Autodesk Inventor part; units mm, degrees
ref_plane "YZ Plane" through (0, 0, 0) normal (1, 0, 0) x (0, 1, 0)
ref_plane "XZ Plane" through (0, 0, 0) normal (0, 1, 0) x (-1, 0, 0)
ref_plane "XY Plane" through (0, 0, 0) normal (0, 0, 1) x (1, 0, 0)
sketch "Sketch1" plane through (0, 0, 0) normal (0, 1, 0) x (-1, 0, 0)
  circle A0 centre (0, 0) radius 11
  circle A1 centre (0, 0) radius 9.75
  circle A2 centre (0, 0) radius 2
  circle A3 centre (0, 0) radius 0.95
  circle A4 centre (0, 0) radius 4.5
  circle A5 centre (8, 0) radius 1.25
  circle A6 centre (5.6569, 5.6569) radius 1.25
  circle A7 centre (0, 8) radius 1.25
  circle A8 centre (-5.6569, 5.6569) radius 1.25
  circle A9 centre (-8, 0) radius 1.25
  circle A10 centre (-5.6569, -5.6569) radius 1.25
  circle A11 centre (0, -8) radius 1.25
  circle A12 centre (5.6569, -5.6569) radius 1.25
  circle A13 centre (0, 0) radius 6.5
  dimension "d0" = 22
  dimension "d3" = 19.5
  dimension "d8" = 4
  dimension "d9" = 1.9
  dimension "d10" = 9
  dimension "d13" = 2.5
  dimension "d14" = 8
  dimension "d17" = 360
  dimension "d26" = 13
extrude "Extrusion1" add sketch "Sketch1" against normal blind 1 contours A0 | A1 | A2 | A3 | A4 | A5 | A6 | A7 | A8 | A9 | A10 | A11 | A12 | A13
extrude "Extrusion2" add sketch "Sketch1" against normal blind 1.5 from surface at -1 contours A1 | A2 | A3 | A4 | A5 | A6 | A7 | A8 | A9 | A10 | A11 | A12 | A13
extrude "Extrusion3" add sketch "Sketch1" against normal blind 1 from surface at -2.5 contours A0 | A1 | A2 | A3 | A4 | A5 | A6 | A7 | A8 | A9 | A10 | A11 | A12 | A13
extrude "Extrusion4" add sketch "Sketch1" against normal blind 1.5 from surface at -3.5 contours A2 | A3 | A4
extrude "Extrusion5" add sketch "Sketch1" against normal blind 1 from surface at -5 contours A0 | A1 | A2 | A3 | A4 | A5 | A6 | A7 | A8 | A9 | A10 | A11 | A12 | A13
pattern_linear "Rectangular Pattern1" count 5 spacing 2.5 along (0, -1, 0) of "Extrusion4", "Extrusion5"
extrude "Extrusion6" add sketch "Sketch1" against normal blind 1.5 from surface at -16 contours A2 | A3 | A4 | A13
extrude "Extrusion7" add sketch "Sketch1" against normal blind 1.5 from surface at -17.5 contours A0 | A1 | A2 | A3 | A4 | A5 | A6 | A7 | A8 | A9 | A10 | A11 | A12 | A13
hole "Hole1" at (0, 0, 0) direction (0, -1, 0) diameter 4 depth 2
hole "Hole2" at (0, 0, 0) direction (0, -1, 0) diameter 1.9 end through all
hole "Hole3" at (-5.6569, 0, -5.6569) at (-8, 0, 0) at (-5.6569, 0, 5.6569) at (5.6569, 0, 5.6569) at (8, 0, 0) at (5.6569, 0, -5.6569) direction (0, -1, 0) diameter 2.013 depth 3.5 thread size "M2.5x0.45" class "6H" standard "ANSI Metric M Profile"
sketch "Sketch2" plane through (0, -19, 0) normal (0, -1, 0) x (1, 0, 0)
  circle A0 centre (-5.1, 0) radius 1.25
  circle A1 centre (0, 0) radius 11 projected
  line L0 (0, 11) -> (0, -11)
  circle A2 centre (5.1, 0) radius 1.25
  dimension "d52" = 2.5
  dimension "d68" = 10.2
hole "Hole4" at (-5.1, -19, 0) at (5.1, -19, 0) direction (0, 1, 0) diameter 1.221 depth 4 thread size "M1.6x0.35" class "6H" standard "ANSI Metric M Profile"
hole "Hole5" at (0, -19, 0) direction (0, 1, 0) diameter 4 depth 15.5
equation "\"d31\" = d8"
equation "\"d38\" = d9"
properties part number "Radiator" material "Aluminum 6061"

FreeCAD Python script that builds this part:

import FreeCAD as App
import Part
import Sketcher

V = App.Vector
Q = App.Units.Quantity

doc = App.newDocument("Part")
body = doc.addObject("PartDesign::Body", "Body")

# Sketch on XZ plane
sketch1 = doc.addObject("Sketcher::SketchObject", "Sketch")
body.addObject(sketch1)
sketch1.AttachmentSupport = (doc.XZ_Plane, [""])
sketch1.MapMode = "FlatFace"
sketch1.addGeometry(Part.Circle(V(0, 0, 0), V(0, 0, 1), 11), False)
sketch1.addConstraint([
    Sketcher.Constraint("Coincident", 0, 3, -1, 1),
    Sketcher.Constraint("Diameter", 0, Q("22 mm")),
])
pad1 = doc.addObject("PartDesign::Pad", "Pad")
body.addObject(pad1)
pad1.Profile = sketch1
pad1.Length = 1

# Sketch on XZ plane
sketch2 = doc.addObject("Sketcher::SketchObject", "Sketch001")
body.addObject(sketch2)
sketch2.AttachmentSupport = (doc.XZ_Plane, [""])
sketch2.MapMode = "FlatFace"
sketch2.AttachmentOffset = App.Placement(V(0, 0, 1), App.Rotation())
sketch2.addGeometry(Part.Circle(V(0, 0, 0), V(0, 0, 1), 10), False)
sketch2.addConstraint([
    Sketcher.Constraint("Coincident", 0, 3, -1, 1),
    Sketcher.Constraint("Diameter", 0, Q("19.5 mm")),
])
pad2 = doc.addObject("PartDesign::Pad", "Pad001")
body.addObject(pad2)
pad2.Profile = sketch2
pad2.Length = 1.5

# Sketch on XZ plane
sketch3 = doc.addObject("Sketcher::SketchObject", "Sketch002")
body.addObject(sketch3)
sketch3.AttachmentSupport = (doc.XZ_Plane, [""])
sketch3.MapMode = "FlatFace"
sketch3.AttachmentOffset = App.Placement(V(0, 0, 2.5), App.Rotation())
sketch3.addGeometry(Part.Circle(V(0, 0, 0), V(0, 0, 1), 11), False)
sketch3.addConstraint([
    Sketcher.Constraint("Coincident", 0, 3, -1, 1),
    Sketcher.Constraint("Diameter", 0, Q("22 mm")),
])
pad3 = doc.addObject("PartDesign::Pad", "Pad002")
body.addObject(pad3)
pad3.Profile = sketch3
pad3.Length = 1

# Sketch on XZ plane
sketch4 = doc.addObject("Sketcher::SketchObject", "Sketch003")
body.addObject(sketch4)
sketch4.AttachmentSupport = (doc.XZ_Plane, [""])
sketch4.MapMode = "FlatFace"
sketch4.AttachmentOffset = App.Placement(V(0, 0, 3.5), App.Rotation())
sketch4.addGeometry(Part.Circle(V(0, 0, 0), V(0, 0, 1), 4.5), False)
sketch4.addConstraint([
    Sketcher.Constraint("Coincident", 0, 3, -1, 1),
    Sketcher.Constraint("Diameter", 0, Q("9 mm")),
])
pad4 = doc.addObject("PartDesign::Pad", "Pad003")
body.addObject(pad4)
pad4.Profile = sketch4
pad4.Length = 1.5

# Sketch on XZ plane
sketch5 = doc.addObject("Sketcher::SketchObject", "Sketch004")
body.addObject(sketch5)
sketch5.AttachmentSupport = (doc.XZ_Plane, [""])
sketch5.MapMode = "FlatFace"
sketch5.AttachmentOffset = App.Placement(V(0, 0, 5), App.Rotation())
sketch5.addGeometry(Part.Circle(V(0, 0, 0), V(0, 0, 1), 11), False)
sketch5.addConstraint([
    Sketcher.Constraint("Coincident", 0, 3, -1, 1),
    Sketcher.Constraint("Diameter", 0, Q("22 mm")),
])
pad5 = doc.addObject("PartDesign::Pad", "Pad004")
body.addObject(pad5)
pad5.Profile = sketch5
pad5.Length = 1
doc.recompute()

linearpattern = doc.addObject("PartDesign::LinearPattern", "LinearPattern")
body.addObject(linearpattern)
linearpattern.Originals = [pad4, pad5]
linearpattern.Direction = (doc.Y_Axis, [""])
linearpattern.Mode = "offset"
linearpattern.Offset = 2.5
linearpattern.Occurrences = 5
linearpattern.Reversed = True
body.Tip = linearpattern

# Sketch on XZ plane
sketch6 = doc.addObject("Sketcher::SketchObject", "Sketch005")
body.addObject(sketch6)
sketch6.AttachmentSupport = (doc.XZ_Plane, [""])
sketch6.MapMode = "FlatFace"
sketch6.AttachmentOffset = App.Placement(V(0, 0, 16), App.Rotation())
sketch6.addGeometry(Part.Circle(V(0, 0, 0), V(0, 0, 1), 6), False)
sketch6.addConstraint([
    Sketcher.Constraint("Coincident", 0, 3, -1, 1),
    Sketcher.Constraint("Diameter", 0, Q("13 mm")),
])
pad6 = doc.addObject("PartDesign::Pad", "Pad005")
body.addObject(pad6)
pad6.Profile = sketch6
pad6.Length = 1.5

# Sketch on XZ plane
sketch7 = doc.addObject("Sketcher::SketchObject", "Sketch006")
body.addObject(sketch7)
sketch7.AttachmentSupport = (doc.XZ_Plane, [""])
sketch7.MapMode = "FlatFace"
sketch7.AttachmentOffset = App.Placement(V(0, 0, 17.5), App.Rotation())
sketch7.addGeometry(Part.Circle(V(0, 0, 0), V(0, 0, 1), 11), False)
sketch7.addConstraint([
    Sketcher.Constraint("Coincident", 0, 3, -1, 1),
    Sketcher.Constraint("Diameter", 0, Q("22 mm")),
])
pad7 = doc.addObject("PartDesign::Pad", "Pad006")
body.addObject(pad7)
pad7.Profile = sketch7
pad7.Length = 1.5

# Sketch on XZ plane
sketch8 = doc.addObject("Sketcher::SketchObject", "Sketch007")
body.addObject(sketch8)
sketch8.AttachmentSupport = (doc.XZ_Plane, [""])
sketch8.MapMode = "FlatFace"
sketch8.addGeometry(Part.Circle(V(0, 0, 0), V(0, 0, 1), 2), False)
sketch8.addConstraint([
    Sketcher.Constraint("Coincident", 0, 3, -1, 1),
    Sketcher.Constraint("Diameter", 0, Q("4 mm")),
])
doc.recompute()
hole = doc.addObject("PartDesign::Hole", "Hole")
body.addObject(hole)
hole.Profile = sketch8
hole.ThreadType = "None"
hole.Diameter = 4
hole.DepthType = "Dimension"
hole.Depth = 2
hole.DrillPoint = "Flat"
hole.Reversed = True

# Sketch on XZ plane
sketch9 = doc.addObject("Sketcher::SketchObject", "Sketch008")
body.addObject(sketch9)
sketch9.AttachmentSupport = (doc.XZ_Plane, [""])
sketch9.MapMode = "FlatFace"
sketch9.addGeometry(Part.Circle(V(0, 0, 0), V(0, 0, 1), 0.9), False)
sketch9.addConstraint([
    Sketcher.Constraint("Coincident", 0, 3, -1, 1),
    Sketcher.Constraint("Diameter", 0, Q("1.9 mm")),
])
doc.recompute()
hole2 = doc.addObject("PartDesign::Hole", "Hole001")
body.addObject(hole2)
hole2.Profile = sketch9
hole2.ThreadType = "None"
hole2.Diameter = 1.9
hole2.DepthType = "ThroughAll"
hole2.Reversed = True

# Sketch on XZ plane
sketch10 = doc.addObject("Sketcher::SketchObject", "Sketch009")
body.addObject(sketch10)
sketch10.AttachmentSupport = (doc.XZ_Plane, [""])
sketch10.MapMode = "FlatFace"
sketch10.addGeometry([
    Part.Circle(V(-5.7, -5.7, 0), V(0, 0, 1), 1),  # 0
    Part.Circle(V(-8, 0, 0), V(0, 0, 1), 1),  # 1
    Part.Circle(V(-5.7, 5.7, 0), V(0, 0, 1), 1),  # 2
    Part.Circle(V(5.7, 5.7, 0), V(0, 0, 1), 1),  # 3
    Part.Circle(V(8, 0, 0), V(0, 0, 1), 1),  # 4
    Part.Circle(V(5.7, -5.7, 0), V(0, 0, 1), 1),  # 5
], False)
sketch10.addConstraint([
    Sketcher.Constraint("Equal", 0, 1),
    Sketcher.Constraint("Equal", 1, 2),
    Sketcher.Constraint("Equal", 2, 3),
    Sketcher.Constraint("Equal", 3, 4),
    Sketcher.Constraint("Equal", 4, 5),
    Sketcher.Constraint("Symmetric", 0, 3, 3, 3, -1, 1),
    Sketcher.Constraint("Symmetric", 1, 3, 4, 3, -1, 1),
    Sketcher.Constraint("Symmetric", 2, 3, 5, 3, -1, 1),
    Sketcher.Constraint("Symmetric", 2, 3, 3, 3, -2),
    Sketcher.Constraint("PointOnObject", 1, 3, -1),
    Sketcher.Constraint("Diameter", 0, Q("2.013 mm")),
    Sketcher.Constraint("DistanceX", 1, 3, -1, 1, Q("8 mm")),
    Sketcher.Constraint("DistanceX", 0, 3, -1, 1, Q("5.657 mm")),
    Sketcher.Constraint("DistanceY", 0, 3, -1, 1, Q("5.657 mm")),
])
doc.recompute()
hole3 = doc.addObject("PartDesign::Hole", "Hole002")
body.addObject(hole3)
hole3.Profile = sketch10
hole3.ThreadType = "None"
hole3.Diameter = 2.013
hole3.DepthType = "Dimension"
hole3.Depth = 3.5
hole3.DrillPoint = "Flat"
hole3.Reversed = True

# Sketch on XZ plane
sketch11 = doc.addObject("Sketcher::SketchObject", "Sketch010")
body.addObject(sketch11)
sketch11.AttachmentSupport = (doc.XZ_Plane, [""])
sketch11.MapMode = "FlatFace"
sketch11.AttachmentOffset = App.Placement(V(0, 0, 19), App.Rotation())
sketch11.addGeometry([
    Part.Circle(V(-5.1, 0, 0), V(0, 0, 1), 0.6),
    Part.Circle(V(5.1, 0, 0), V(0, 0, 1), 0.6),
], False)
sketch11.addConstraint([
    Sketcher.Constraint("Equal", 0, 1),
    Sketcher.Constraint("Symmetric", 0, 3, 1, 3, -1, 1),
    Sketcher.Constraint("PointOnObject", 0, 3, -1),
    Sketcher.Constraint("Diameter", 0, Q("1.221 mm")),
    Sketcher.Constraint("DistanceX", 0, 3, -1, 1, Q("5.1 mm")),
])
doc.recompute()
hole4 = doc.addObject("PartDesign::Hole", "Hole003")
body.addObject(hole4)
hole4.Profile = sketch11
hole4.ThreadType = "None"
hole4.Diameter = 1.221
hole4.DepthType = "Dimension"
hole4.Depth = 4
hole4.DrillPoint = "Flat"

# Sketch on XZ plane
sketch12 = doc.addObject("Sketcher::SketchObject", "Sketch011")
body.addObject(sketch12)
sketch12.AttachmentSupport = (doc.XZ_Plane, [""])
sketch12.MapMode = "FlatFace"
sketch12.AttachmentOffset = App.Placement(V(0, 0, 19), App.Rotation())
sketch12.addGeometry(Part.Circle(V(0, 0, 0), V(0, 0, 1), 2), False)
sketch12.addConstraint([
    Sketcher.Constraint("Coincident", 0, 3, -1, 1),
    Sketcher.Constraint("Diameter", 0, Q("4 mm")),
])
doc.recompute()
hole5 = doc.addObject("PartDesign::Hole", "Hole004")
body.addObject(hole5)
hole5.Profile = sketch12
hole5.ThreadType = "None"
hole5.Diameter = 4
hole5.DepthType = "Dimension"
hole5.Depth = 15.5
hole5.DrillPoint = "Flat"

doc.recompute()
